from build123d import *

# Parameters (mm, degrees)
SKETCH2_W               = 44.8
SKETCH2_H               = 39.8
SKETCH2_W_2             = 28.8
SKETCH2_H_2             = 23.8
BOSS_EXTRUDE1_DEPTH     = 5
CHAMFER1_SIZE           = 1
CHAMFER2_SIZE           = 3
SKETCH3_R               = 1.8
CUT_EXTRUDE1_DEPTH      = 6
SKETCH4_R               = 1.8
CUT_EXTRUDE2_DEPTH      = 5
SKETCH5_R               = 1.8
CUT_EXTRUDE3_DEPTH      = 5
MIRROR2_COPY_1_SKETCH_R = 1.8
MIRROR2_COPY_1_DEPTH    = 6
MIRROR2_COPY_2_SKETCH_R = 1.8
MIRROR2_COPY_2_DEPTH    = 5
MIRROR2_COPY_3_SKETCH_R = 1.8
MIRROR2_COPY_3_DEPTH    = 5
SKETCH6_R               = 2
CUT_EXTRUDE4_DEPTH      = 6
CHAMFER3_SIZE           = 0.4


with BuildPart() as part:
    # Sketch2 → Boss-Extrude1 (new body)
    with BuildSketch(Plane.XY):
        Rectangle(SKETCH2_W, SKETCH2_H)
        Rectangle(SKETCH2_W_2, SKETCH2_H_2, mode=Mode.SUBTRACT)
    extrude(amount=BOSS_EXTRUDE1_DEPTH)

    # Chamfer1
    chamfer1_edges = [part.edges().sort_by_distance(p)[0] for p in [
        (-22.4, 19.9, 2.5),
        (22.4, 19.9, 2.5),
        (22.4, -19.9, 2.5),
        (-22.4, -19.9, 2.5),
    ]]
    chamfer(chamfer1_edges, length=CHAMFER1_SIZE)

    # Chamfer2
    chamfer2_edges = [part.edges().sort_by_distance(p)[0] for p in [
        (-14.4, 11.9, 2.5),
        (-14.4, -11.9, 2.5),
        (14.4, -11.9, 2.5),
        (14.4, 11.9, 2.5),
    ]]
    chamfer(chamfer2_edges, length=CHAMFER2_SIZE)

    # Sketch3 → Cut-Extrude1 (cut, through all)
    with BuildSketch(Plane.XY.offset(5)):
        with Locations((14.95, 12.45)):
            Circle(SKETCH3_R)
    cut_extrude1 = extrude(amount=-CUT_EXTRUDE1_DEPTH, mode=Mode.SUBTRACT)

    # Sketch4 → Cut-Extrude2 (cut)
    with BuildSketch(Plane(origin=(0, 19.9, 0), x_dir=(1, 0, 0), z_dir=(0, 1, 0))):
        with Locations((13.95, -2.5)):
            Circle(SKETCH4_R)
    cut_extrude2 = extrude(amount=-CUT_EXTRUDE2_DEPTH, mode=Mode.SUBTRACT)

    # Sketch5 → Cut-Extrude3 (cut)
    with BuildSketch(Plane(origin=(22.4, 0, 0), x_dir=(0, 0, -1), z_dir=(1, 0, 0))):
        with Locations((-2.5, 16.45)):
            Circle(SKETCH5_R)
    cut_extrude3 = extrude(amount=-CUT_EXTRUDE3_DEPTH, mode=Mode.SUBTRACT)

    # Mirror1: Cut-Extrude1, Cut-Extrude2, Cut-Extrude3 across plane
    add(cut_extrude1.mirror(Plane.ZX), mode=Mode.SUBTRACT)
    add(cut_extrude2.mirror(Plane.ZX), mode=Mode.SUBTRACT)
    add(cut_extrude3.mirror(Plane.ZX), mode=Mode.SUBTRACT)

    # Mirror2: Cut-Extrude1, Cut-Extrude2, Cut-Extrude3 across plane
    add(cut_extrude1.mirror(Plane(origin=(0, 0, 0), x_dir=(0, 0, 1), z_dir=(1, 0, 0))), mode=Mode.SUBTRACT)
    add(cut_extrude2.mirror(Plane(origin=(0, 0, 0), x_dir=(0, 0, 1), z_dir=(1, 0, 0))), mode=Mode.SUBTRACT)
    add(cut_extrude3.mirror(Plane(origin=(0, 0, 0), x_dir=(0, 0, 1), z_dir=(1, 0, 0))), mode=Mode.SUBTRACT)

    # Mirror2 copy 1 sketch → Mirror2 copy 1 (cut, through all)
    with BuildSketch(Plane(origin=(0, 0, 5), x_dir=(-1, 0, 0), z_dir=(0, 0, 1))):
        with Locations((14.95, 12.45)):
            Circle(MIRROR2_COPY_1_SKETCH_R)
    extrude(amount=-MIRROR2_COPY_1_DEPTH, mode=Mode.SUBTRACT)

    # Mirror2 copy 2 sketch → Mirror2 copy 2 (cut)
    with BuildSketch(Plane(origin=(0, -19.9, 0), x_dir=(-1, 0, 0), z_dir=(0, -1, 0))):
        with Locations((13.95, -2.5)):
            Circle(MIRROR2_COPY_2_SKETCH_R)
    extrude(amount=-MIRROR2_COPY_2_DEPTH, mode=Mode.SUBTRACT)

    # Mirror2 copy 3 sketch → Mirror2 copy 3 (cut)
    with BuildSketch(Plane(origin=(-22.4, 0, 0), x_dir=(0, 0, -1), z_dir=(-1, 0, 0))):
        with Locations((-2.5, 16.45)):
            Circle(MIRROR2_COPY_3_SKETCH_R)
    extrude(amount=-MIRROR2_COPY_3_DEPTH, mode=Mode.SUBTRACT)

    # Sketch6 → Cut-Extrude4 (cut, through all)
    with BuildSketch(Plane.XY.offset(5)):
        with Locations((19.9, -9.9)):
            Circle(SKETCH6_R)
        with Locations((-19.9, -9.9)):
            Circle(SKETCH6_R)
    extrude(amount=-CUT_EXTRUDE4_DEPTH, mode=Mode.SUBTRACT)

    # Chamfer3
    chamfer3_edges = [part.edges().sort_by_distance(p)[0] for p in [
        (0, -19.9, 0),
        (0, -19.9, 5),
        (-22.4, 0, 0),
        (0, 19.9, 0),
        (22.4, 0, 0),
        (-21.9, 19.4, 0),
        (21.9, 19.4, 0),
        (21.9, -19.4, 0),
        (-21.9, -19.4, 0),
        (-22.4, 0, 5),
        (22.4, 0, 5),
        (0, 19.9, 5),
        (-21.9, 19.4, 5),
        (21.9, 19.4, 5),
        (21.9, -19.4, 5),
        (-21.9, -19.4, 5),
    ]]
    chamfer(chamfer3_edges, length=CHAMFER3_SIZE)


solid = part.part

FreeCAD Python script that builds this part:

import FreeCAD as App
import Part
import Sketcher
Q = App.Units.Quantity


def edges_at(feature, points):
    """Names of the edges that pass closest to the given points."""
    edges = feature.Shape.Edges
    near = lambda p: min(range(len(edges)), key=lambda i: edges[i].distToShape(Part.Vertex(*p))[0])
    return sorted({f"Edge{near(p) + 1}" for p in points})

doc = App.newDocument("Part")
params = doc.addObject("Spreadsheet::Sheet", "Params")
for row, (alias, value) in enumerate([
    ("sketch1_width", "44.8 mm"),
    ("sketch1_width2", "28.8 mm"),
    ("sketch1_height", "39.8 mm"),
    ("sketch1_height2", "23.8 mm"),
    ("pad1_length", "5 mm"),
    ("chamfer_size", "1 mm"),
    ("chamfer2_size", "3 mm"),
    ("sketch2_diameter", "3.6 mm"),
    ("sketch3_diameter", "3.6 mm"),
    ("pocket2_length", "5 mm"),
    ("sketch4_diameter", "3.6 mm"),
    ("pocket3_length", "5 mm"),
    ("sketch5_diameter", "3.6 mm"),
    ("sketch6_diameter", "3.6 mm"),
    ("pocket5_length", "5 mm"),
    ("sketch7_diameter", "3.6 mm"),
    ("pocket6_length", "5 mm"),
    ("sketch8_diameter", "4 mm"),
    ("chamfer3_size", "0.4 mm"),
], start=1):
    params.set(f"A{row}", alias)
    params.set(f"B{row}", "=" + value)
    params.setAlias(f"B{row}", alias)

body = doc.addObject("PartDesign::Body", "Body")

# Sketch on XY plane
sketch1 = doc.addObject("Sketcher::SketchObject", "Sketch")
body.addObject(sketch1)
sketch1.AttachmentSupport = (doc.XY_Plane, [""])
sketch1.MapMode = "FlatFace"
sketch1.addGeometry([
    Part.LineSegment(App.Vector(-22, 20, 0), App.Vector(-22, -20, 0)),  # 0
    Part.LineSegment(App.Vector(-22, -20, 0), App.Vector(22, -20, 0)),  # 1
    Part.LineSegment(App.Vector(22, -20, 0), App.Vector(22, 20, 0)),  # 2
    Part.LineSegment(App.Vector(22, 20, 0), App.Vector(-22, 20, 0)),  # 3
    Part.LineSegment(App.Vector(14, -12, 0), App.Vector(-14, -12, 0)),  # 4
    Part.LineSegment(App.Vector(-14, -12, 0), App.Vector(-14, 12, 0)),  # 5
    Part.LineSegment(App.Vector(-14, 12, 0), App.Vector(14, 12, 0)),  # 6
    Part.LineSegment(App.Vector(14, 12, 0), App.Vector(14, -12, 0)),  # 7
], False)
sketch1.addConstraint([
    Sketcher.Constraint("Coincident", 0, 2, 1, 1),
    Sketcher.Constraint("Coincident", 1, 2, 2, 1),
    Sketcher.Constraint("Coincident", 2, 2, 3, 1),
    Sketcher.Constraint("Coincident", 3, 2, 0, 1),
    Sketcher.Constraint("Coincident", 4, 2, 5, 1),
    Sketcher.Constraint("Coincident", 5, 2, 6, 1),
    Sketcher.Constraint("Coincident", 6, 2, 7, 1),
    Sketcher.Constraint("Coincident", 7, 2, 4, 1),
    Sketcher.Constraint("Vertical", 0),
    Sketcher.Constraint("Horizontal", 1),
    Sketcher.Constraint("Vertical", 2),
    Sketcher.Constraint("Horizontal", 3),
    Sketcher.Constraint("Horizontal", 4),
    Sketcher.Constraint("Vertical", 5),
    Sketcher.Constraint("Horizontal", 6),
    Sketcher.Constraint("Vertical", 7),
    Sketcher.Constraint("Symmetric", 0, 2, 2, 2, -1, 1),
    Sketcher.Constraint("Symmetric", 4, 2, 6, 2, -1, 1),
    Sketcher.Constraint("DistanceX", 1, 1, 1, 2, Q("44.8 mm")),
    Sketcher.Constraint("DistanceX", 4, 2, 4, 1, Q("28.8 mm")),
    Sketcher.Constraint("DistanceY", 0, 2, 0, 1, Q("39.8 mm")),
    Sketcher.Constraint("DistanceY", 5, 1, 5, 2, Q("23.8 mm")),
])
sketch1.setExpression("Constraints[18]", "Params.sketch1_width")
sketch1.setExpression("Constraints[19]", "Params.sketch1_width2")
sketch1.setExpression("Constraints[20]", "Params.sketch1_height")
sketch1.setExpression("Constraints[21]", "Params.sketch1_height2")
pad1 = doc.addObject("PartDesign::Pad", "Pad")
body.addObject(pad1)
pad1.Profile = sketch1
pad1.setExpression("Length", "Params.pad1_length")
doc.recompute()

chamfer = doc.addObject("PartDesign::Chamfer", "Chamfer")
body.addObject(chamfer)
chamfer.Base = (pad1, edges_at(pad1, [
    (-22.4, 19.9, 2.5),
    (22.4, 19.9, 2.5),
    (22.4, -19.9, 2.5),
    (-22.4, -19.9, 2.5),
]))
chamfer.setExpression("Size", "Params.chamfer_size")
doc.recompute()

chamfer2 = doc.addObject("PartDesign::Chamfer", "Chamfer001")
body.addObject(chamfer2)
chamfer2.Base = (chamfer, edges_at(chamfer, [
    (-14.4, 11.9, 2.5),
    (-14.4, -11.9, 2.5),
    (14.4, -11.9, 2.5),
    (14.4, 11.9, 2.5),
]))
chamfer2.setExpression("Size", "Params.chamfer2_size")

# Sketch on XY plane
sketch2 = doc.addObject("Sketcher::SketchObject", "Sketch001")
body.addObject(sketch2)
sketch2.AttachmentSupport = (doc.XY_Plane, [""])
sketch2.MapMode = "FlatFace"
sketch2.AttachmentOffset = App.Placement(App.Vector(0, 0, 5), App.Rotation())
sketch2.addGeometry(Part.Circle(App.Vector(14.9, 12.4, 0), App.Vector(0, 0, 1), 1.8), False)
sketch2.addConstraint([
    Sketcher.Constraint("Diameter", 0, Q("3.6 mm")),
    Sketcher.Constraint("DistanceX", -1, 1, 0, 3, Q("14.95 mm")),
    Sketcher.Constraint("DistanceY", -1, 1, 0, 3, Q("12.45 mm")),
])
sketch2.setExpression("Constraints[0]", "Params.sketch2_diameter")
pocket1 = doc.addObject("PartDesign::Pocket", "Pocket")
body.addObject(pocket1)
pocket1.Profile = sketch2
pocket1.Type = "ThroughAll"

# Sketch on XZ plane
sketch3 = doc.addObject("Sketcher::SketchObject", "Sketch002")
body.addObject(sketch3)
sketch3.AttachmentSupport = (doc.XZ_Plane, [""])
sketch3.MapMode = "FlatFace"
sketch3.AttachmentOffset = App.Placement(App.Vector(0, 0, -19.9), App.Rotation())
sketch3.addGeometry(Part.Circle(App.Vector(13.9, 2.5, 0), App.Vector(0, 0, 1), 1.8), False)
sketch3.addConstraint([
    Sketcher.Constraint("Diameter", 0, Q("3.6 mm")),
    Sketcher.Constraint("DistanceY", -1, 1, 0, 3, Q("2.5 mm")),
    Sketcher.Constraint("DistanceX", -1, 1, 0, 3, Q("13.95 mm")),
])
sketch3.setExpression("Constraints[0]", "Params.sketch3_diameter")
pocket2 = doc.addObject("PartDesign::Pocket", "Pocket001")
body.addObject(pocket2)
pocket2.Profile = sketch3
pocket2.setExpression("Length", "Params.pocket2_length")
pocket2.Reversed = True

# Sketch on YZ plane
sketch4 = doc.addObject("Sketcher::SketchObject", "Sketch003")
body.addObject(sketch4)
sketch4.AttachmentSupport = (doc.YZ_Plane, [""])
sketch4.MapMode = "FlatFace"
sketch4.AttachmentOffset = App.Placement(App.Vector(0, 0, 22.4), App.Rotation())
sketch4.addGeometry(Part.Circle(App.Vector(16.4, 2.5, 0), App.Vector(0, 0, 1), 1.8), False)
sketch4.addConstraint([
    Sketcher.Constraint("Diameter", 0, Q("3.6 mm")),
    Sketcher.Constraint("DistanceY", -1, 1, 0, 3, Q("2.5 mm")),
    Sketcher.Constraint("DistanceX", -1, 1, 0, 3, Q("16.45 mm")),
])
sketch4.setExpression("Constraints[0]", "Params.sketch4_diameter")
pocket3 = doc.addObject("PartDesign::Pocket", "Pocket002")
body.addObject(pocket3)
pocket3.Profile = sketch4
pocket3.setExpression("Length", "Params.pocket3_length")
doc.recompute()

mirrored = doc.addObject("PartDesign::Mirrored", "Mirrored")
body.addObject(mirrored)
mirrored.Originals = [pocket1, pocket2, pocket3]
mirrored.MirrorPlane = (doc.XZ_Plane, [""])
body.Tip = mirrored
doc.recompute()

mirrored2 = doc.addObject("PartDesign::Mirrored", "Mirrored001")
body.addObject(mirrored2)
mirrored2.Originals = [pocket1, pocket2, pocket3]
mirrored2.MirrorPlane = (doc.YZ_Plane, [""])
body.Tip = mirrored2

# Sketch on XY plane
sketch5 = doc.addObject("Sketcher::SketchObject", "Sketch004")
body.addObject(sketch5)
sketch5.AttachmentSupport = (doc.XY_Plane, [""])
sketch5.MapMode = "FlatFace"
sketch5.AttachmentOffset = App.Placement(App.Vector(0, 0, 5), App.Rotation())
sketch5.addGeometry(Part.Circle(App.Vector(-14.9, -12.4, 0), App.Vector(0, 0, 1), 1.8), False)
sketch5.addConstraint([
    Sketcher.Constraint("Diameter", 0, Q("3.6 mm")),
    Sketcher.Constraint("DistanceX", 0, 3, -1, 1, Q("14.95 mm")),
    Sketcher.Constraint("DistanceY", 0, 3, -1, 1, Q("12.45 mm")),
])
sketch5.setExpression("Constraints[0]", "Params.sketch5_diameter")
pocket4 = doc.addObject("PartDesign::Pocket", "Pocket003")
body.addObject(pocket4)
pocket4.Profile = sketch5
pocket4.Type = "ThroughAll"

# Sketch on XZ plane
sketch6 = doc.addObject("Sketcher::SketchObject", "Sketch005")
body.addObject(sketch6)
sketch6.AttachmentSupport = (doc.XZ_Plane, [""])
sketch6.MapMode = "FlatFace"
sketch6.AttachmentOffset = App.Placement(App.Vector(0, 0, 19.9), App.Rotation())
sketch6.addGeometry(Part.Circle(App.Vector(-13.9, 2.5, 0), App.Vector(0, 0, 1), 1.8), False)
sketch6.addConstraint([
    Sketcher.Constraint("Diameter", 0, Q("3.6 mm")),
    Sketcher.Constraint("DistanceY", -1, 1, 0, 3, Q("2.5 mm")),
    Sketcher.Constraint("DistanceX", 0, 3, -1, 1, Q("13.95 mm")),
])
sketch6.setExpression("Constraints[0]", "Params.sketch6_diameter")
pocket5 = doc.addObject("PartDesign::Pocket", "Pocket004")
body.addObject(pocket5)
pocket5.Profile = sketch6
pocket5.setExpression("Length", "Params.pocket5_length")

# Sketch on YZ plane
sketch7 = doc.addObject("Sketcher::SketchObject", "Sketch006")
body.addObject(sketch7)
sketch7.AttachmentSupport = (doc.YZ_Plane, [""])
sketch7.MapMode = "FlatFace"
sketch7.AttachmentOffset = App.Placement(App.Vector(0, 0, -22.4), App.Rotation())
sketch7.addGeometry(Part.Circle(App.Vector(-16.4, 2.5, 0), App.Vector(0, 0, 1), 1.8), False)
sketch7.addConstraint([
    Sketcher.Constraint("Diameter", 0, Q("3.6 mm")),
    Sketcher.Constraint("DistanceY", -1, 1, 0, 3, Q("2.5 mm")),
    Sketcher.Constraint("DistanceX", 0, 3, -1, 1, Q("16.45 mm")),
])
sketch7.setExpression("Constraints[0]", "Params.sketch7_diameter")
pocket6 = doc.addObject("PartDesign::Pocket", "Pocket005")
body.addObject(pocket6)
pocket6.Profile = sketch7
pocket6.setExpression("Length", "Params.pocket6_length")
pocket6.Reversed = True

# Sketch on XY plane
sketch8 = doc.addObject("Sketcher::SketchObject", "Sketch007")
body.addObject(sketch8)
sketch8.AttachmentSupport = (doc.XY_Plane, [""])
sketch8.MapMode = "FlatFace"
sketch8.AttachmentOffset = App.Placement(App.Vector(0, 0, 5), App.Rotation())
sketch8.addGeometry([
    Part.Circle(App.Vector(19.9, -9.9, 0), App.Vector(0, 0, 1), 2),
    Part.Circle(App.Vector(-19.9, -9.9, 0), App.Vector(0, 0, 1), 2),
], False)
sketch8.addConstraint([
    Sketcher.Constraint("Equal", 0, 1),
    Sketcher.Constraint("Symmetric", 0, 3, 1, 3, -2),
    Sketcher.Constraint("Diameter", 0, Q("4 mm")),
    Sketcher.Constraint("DistanceX", -1, 1, 0, 3, Q("19.9 mm")),
    Sketcher.Constraint("DistanceY", 0, 3, -1, 1, Q("9.9 mm")),
])
sketch8.setExpression("Constraints[2]", "Params.sketch8_diameter")
pocket7 = doc.addObject("PartDesign::Pocket", "Pocket006")
body.addObject(pocket7)
pocket7.Profile = sketch8
pocket7.Type = "ThroughAll"
doc.recompute()

chamfer3 = doc.addObject("PartDesign::Chamfer", "Chamfer002")
body.addObject(chamfer3)
chamfer3.Base = (pocket7, edges_at(pocket7, [
    (0, -19.9, 0),
    (0, -19.9, 5),
    (-22.4, 0, 0),
    (0, 19.9, 0),
    (22.4, 0, 0),
    (-21.9, 19.4, 0),
    (21.9, 19.4, 0),
    (21.9, -19.4, 0),
    (-21.9, -19.4, 0),
    (-22.4, 0, 5),
    (22.4, 0, 5),
    (0, 19.9, 5),
    (-21.9, 19.4, 5),
    (21.9, 19.4, 5),
    (21.9, -19.4, 5),
    (-21.9, -19.4, 5),
]))
chamfer3.setExpression("Size", "Params.chamfer3_size")

doc.recompute()
